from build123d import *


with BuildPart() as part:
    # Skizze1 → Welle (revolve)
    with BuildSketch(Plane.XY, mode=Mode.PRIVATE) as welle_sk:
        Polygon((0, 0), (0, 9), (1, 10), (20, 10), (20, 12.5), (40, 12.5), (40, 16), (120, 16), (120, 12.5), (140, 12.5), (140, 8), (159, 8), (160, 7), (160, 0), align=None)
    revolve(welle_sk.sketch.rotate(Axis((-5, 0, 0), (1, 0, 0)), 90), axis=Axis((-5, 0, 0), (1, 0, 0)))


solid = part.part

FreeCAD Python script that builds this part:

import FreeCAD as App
import Part
import Sketcher
from FreeCAD import Vector
Q = App.Units.Quantity

doc = App.newDocument("Part")
body = doc.addObject("PartDesign::Body", "Body")

sketch1 = body.newObject("Sketcher::SketchObject", "Sketch")
sketch1.AttachmentSupport = (doc.getObject("XY_Plane"), [""])
sketch1.MapMode = "FlatFace"
sketch1.addGeometry([
    Part.LineSegment(Vector(0, 9, 0), Vector(0, 0, 0)),
    Part.LineSegment(Vector(0, 0, 0), Vector(160, 0, 0)),
    Part.LineSegment(Vector(160, 0, 0), Vector(160, 7, 0)),
    Part.LineSegment(Vector(160, 7, 0), Vector(159, 8, 0)),
    Part.LineSegment(Vector(159, 8, 0), Vector(140, 8, 0)),
    Part.LineSegment(Vector(140, 8, 0), Vector(140, 12.5, 0)),
    Part.LineSegment(Vector(140, 12.5, 0), Vector(120, 12.5, 0)),
    Part.LineSegment(Vector(120, 12.5, 0), Vector(120, 16, 0)),
    Part.LineSegment(Vector(120, 16, 0), Vector(40, 16, 0)),
    Part.LineSegment(Vector(40, 16, 0), Vector(40, 12.5, 0)),
    Part.LineSegment(Vector(40, 12.5, 0), Vector(20, 12.5, 0)),
    Part.LineSegment(Vector(20, 12.5, 0), Vector(20, 10, 0)),
    Part.LineSegment(Vector(20, 10, 0), Vector(1, 10, 0)),
    Part.LineSegment(Vector(1, 10, 0), Vector(0, 9, 0)),
], False)
sketch1.addConstraint([
    Sketcher.Constraint("Coincident", 0, 2, 1, 1),
    Sketcher.Constraint("Coincident", 1, 2, 2, 1),
    Sketcher.Constraint("Coincident", 2, 2, 3, 1),
    Sketcher.Constraint("Coincident", 3, 2, 4, 1),
    Sketcher.Constraint("Coincident", 4, 2, 5, 1),
    Sketcher.Constraint("Coincident", 5, 2, 6, 1),
    Sketcher.Constraint("Coincident", 6, 2, 7, 1),
    Sketcher.Constraint("Coincident", 7, 2, 8, 1),
    Sketcher.Constraint("Coincident", 8, 2, 9, 1),
    Sketcher.Constraint("Coincident", 9, 2, 10, 1),
    Sketcher.Constraint("Coincident", 10, 2, 11, 1),
    Sketcher.Constraint("Coincident", 11, 2, 12, 1),
    Sketcher.Constraint("Coincident", 12, 2, 13, 1),
    Sketcher.Constraint("Coincident", 13, 2, 0, 1),
    Sketcher.Constraint("Vertical", 0),
    Sketcher.Constraint("Horizontal", 1),
    Sketcher.Constraint("Vertical", 2),
    Sketcher.Constraint("Horizontal", 4),
    Sketcher.Constraint("Vertical", 5),
    Sketcher.Constraint("Horizontal", 6),
    Sketcher.Constraint("Vertical", 7),
    Sketcher.Constraint("Horizontal", 8),
    Sketcher.Constraint("Vertical", 9),
    Sketcher.Constraint("Horizontal", 10),
    Sketcher.Constraint("Vertical", 11),
    Sketcher.Constraint("Horizontal", 12),
    Sketcher.Constraint("Coincident", 0, 2, -1, 1),
    Sketcher.Constraint("Perpendicular", 3, 13),
    Sketcher.Constraint("Horizontal", 6, 2, 9, 2),
    Sketcher.Constraint("Equal", 6, 10),
    Sketcher.Constraint("Equal", 4, 12),
    Sketcher.Constraint("Equal", 3, 13),
    Sketcher.Constraint("DistanceX", 1, 1, 1, 2, Q("160 mm")),
    Sketcher.Constraint("DistanceX", 4, 2, 4, 1, Q("19 mm")),
    Sketcher.Constraint("DistanceX", 6, 2, 6, 1, Q("20 mm")),
    Sketcher.Constraint("DistanceX", 8, 2, 8, 1, Q("80 mm")),
    Sketcher.Constraint("DistanceY", 0, 2, 0, 1, Q("9 mm")),
    Sketcher.Constraint("DistanceY", 2, 1, 2, 2, Q("7 mm")),
    Sketcher.Constraint("Angle", 3, Q("135 deg")),
    Sketcher.Constraint("DistanceY", 5, 1, 5, 2, Q("4.5 mm")),
    Sketcher.Constraint("DistanceY", 7, 1, 7, 2, Q("3.5 mm")),
])
revolution = body.newObject("PartDesign::Revolution", "Revolution")
revolution.Profile = sketch1
revolution.ReferenceAxis = (sketch1, ["H_Axis"])
revolution.Angle = 360

doc.recompute()
